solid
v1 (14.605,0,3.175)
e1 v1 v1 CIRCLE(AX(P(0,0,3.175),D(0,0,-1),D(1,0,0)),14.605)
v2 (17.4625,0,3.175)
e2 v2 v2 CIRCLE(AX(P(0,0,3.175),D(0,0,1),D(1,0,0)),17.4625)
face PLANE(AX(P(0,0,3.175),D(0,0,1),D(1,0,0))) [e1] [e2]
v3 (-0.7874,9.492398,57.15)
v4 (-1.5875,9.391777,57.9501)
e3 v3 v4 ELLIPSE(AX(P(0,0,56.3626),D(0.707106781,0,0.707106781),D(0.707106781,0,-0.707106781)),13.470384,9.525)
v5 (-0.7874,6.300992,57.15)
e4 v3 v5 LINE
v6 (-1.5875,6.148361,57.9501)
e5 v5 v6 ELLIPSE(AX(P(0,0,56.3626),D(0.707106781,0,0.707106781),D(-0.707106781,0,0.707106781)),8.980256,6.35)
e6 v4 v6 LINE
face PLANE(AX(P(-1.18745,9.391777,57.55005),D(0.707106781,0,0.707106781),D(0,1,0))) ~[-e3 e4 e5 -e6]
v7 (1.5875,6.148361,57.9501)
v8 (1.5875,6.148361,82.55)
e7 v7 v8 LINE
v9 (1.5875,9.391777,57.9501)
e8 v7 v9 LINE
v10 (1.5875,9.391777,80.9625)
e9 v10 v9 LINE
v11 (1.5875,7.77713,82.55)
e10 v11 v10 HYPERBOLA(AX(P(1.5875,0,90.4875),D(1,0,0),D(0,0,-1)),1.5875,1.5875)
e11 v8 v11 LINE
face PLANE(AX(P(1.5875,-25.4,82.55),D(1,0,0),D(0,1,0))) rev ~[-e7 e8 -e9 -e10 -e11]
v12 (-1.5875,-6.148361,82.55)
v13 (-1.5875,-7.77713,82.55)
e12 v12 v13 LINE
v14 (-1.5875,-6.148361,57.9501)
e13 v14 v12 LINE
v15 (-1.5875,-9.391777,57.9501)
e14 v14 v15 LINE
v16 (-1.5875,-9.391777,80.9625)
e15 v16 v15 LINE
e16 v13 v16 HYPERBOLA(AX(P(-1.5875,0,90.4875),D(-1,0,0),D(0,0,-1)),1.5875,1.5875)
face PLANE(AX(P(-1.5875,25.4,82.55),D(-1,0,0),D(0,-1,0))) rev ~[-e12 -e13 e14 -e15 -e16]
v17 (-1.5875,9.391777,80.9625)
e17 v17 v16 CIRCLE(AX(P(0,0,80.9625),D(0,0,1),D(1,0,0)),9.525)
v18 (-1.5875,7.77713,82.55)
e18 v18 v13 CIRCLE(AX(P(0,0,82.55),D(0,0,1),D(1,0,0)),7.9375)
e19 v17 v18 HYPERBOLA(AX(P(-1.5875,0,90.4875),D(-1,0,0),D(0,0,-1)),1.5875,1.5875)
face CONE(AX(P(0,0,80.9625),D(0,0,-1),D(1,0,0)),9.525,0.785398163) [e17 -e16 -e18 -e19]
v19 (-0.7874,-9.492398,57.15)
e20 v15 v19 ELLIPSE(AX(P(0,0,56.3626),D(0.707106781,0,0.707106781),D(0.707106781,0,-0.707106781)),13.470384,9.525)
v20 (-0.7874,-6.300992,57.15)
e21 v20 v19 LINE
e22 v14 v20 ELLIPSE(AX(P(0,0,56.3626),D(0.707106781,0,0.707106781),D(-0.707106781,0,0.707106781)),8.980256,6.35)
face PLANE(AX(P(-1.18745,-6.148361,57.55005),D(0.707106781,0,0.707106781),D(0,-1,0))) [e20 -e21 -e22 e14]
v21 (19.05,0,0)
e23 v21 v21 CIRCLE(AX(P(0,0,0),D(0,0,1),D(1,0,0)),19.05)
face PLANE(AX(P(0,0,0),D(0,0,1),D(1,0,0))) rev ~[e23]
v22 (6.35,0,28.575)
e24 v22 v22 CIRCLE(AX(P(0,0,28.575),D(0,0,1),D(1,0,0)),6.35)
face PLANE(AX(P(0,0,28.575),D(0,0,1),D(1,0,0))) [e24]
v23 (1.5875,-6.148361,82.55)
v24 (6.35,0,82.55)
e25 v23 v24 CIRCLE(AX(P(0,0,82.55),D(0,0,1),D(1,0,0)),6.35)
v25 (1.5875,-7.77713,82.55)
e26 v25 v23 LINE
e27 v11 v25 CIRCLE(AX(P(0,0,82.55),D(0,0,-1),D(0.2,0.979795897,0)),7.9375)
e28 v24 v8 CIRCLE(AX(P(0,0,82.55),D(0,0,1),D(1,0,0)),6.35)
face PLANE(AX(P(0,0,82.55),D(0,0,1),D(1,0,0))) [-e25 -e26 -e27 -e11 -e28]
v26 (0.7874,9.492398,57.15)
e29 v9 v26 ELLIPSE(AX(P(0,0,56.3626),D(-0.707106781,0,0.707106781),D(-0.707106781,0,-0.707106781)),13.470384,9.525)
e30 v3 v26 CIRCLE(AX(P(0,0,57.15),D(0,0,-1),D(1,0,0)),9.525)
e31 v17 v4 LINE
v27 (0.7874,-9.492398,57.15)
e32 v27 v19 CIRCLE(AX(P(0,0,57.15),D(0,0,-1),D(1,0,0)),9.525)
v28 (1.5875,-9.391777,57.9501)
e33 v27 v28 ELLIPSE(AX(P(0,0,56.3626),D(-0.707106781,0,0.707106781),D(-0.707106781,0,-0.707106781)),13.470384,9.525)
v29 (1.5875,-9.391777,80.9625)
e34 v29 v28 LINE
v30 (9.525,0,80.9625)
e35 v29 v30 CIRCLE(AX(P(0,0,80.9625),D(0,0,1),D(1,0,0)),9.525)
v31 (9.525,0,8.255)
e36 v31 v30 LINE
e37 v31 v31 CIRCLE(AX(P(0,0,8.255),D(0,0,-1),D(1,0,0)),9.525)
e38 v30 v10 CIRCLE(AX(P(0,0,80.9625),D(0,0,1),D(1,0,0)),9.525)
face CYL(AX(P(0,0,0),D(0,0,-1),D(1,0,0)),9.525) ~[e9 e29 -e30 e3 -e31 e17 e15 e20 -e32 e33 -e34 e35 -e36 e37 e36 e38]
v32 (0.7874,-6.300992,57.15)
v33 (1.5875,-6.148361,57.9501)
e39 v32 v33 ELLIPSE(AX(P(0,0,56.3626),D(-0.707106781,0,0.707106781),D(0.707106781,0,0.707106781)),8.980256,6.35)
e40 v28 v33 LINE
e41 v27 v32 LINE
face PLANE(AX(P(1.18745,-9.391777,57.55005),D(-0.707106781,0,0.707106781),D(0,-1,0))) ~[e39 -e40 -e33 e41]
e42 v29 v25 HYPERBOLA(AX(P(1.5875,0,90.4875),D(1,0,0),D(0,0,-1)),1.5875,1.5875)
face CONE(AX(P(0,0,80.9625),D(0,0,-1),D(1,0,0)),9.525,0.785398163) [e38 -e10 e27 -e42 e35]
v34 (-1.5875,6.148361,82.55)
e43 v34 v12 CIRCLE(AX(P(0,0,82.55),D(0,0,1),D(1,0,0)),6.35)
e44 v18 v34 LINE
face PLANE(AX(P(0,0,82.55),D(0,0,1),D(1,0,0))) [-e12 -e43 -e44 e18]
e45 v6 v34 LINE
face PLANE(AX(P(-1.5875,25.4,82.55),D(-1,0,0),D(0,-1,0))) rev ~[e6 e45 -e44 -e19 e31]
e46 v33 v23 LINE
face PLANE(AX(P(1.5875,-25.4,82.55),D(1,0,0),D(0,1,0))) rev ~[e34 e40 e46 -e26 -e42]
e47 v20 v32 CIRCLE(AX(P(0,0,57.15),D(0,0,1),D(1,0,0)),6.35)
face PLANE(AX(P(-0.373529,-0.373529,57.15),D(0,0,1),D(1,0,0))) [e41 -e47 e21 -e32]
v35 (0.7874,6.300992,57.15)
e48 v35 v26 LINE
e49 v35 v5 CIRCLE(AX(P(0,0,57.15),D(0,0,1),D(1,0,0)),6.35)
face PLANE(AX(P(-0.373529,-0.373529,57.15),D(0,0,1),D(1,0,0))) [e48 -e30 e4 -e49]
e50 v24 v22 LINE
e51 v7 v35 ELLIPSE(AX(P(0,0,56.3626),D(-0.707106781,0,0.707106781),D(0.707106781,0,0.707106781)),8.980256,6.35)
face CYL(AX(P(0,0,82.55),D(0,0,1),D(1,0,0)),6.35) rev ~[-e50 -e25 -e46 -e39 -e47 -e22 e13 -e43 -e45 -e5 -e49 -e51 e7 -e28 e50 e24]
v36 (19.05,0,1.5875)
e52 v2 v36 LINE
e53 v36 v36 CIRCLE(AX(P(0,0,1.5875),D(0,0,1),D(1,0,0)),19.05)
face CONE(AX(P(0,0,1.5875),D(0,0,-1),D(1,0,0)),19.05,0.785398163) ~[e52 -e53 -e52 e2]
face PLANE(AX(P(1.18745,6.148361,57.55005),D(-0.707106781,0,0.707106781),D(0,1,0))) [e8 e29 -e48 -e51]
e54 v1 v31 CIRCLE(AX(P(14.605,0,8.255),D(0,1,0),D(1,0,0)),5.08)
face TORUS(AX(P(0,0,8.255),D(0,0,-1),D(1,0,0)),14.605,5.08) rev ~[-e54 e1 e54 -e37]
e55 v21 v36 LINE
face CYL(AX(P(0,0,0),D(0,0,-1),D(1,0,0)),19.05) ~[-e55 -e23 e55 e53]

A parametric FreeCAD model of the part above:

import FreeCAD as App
import Part
import Sketcher
Q = App.Units.Quantity


def edges_at(feature, points):
    """Names of the edges that pass closest to the given points."""
    edges = feature.Shape.Edges
    near = lambda p: min(range(len(edges)), key=lambda i: edges[i].distToShape(Part.Vertex(*p))[0])
    return sorted({f"Edge{near(p) + 1}" for p in points})


def add_polygon(sketch, points):
    """Adds a closed chain of lines whose ends are joined by coincident constraints."""
    first, n = sketch.GeometryCount, len(points)
    for a, b in zip(points, points[1:] + points[:1]):
        sketch.addGeometry(Part.LineSegment(App.Vector(*a, 0), App.Vector(*b, 0)), False)
    for i in range(n):
        sketch.addConstraint(Sketcher.Constraint("Coincident", first + i, 2, first + (i + 1) % n, 1))

doc = App.newDocument("Part")
params = doc.addObject("Spreadsheet::Sheet", "Params")
for row, (alias, value) in enumerate([
    ("sketch1_diameter", "0.75 in"),
    ("pad1_length", "3.25 in"),
    ("sketch2_diameter", "1.5 in"),
    ("pad2_length", "0.125 in"),
    ("sketch3_diameter", "0.5 in"),
    ("pocket1_length", "2.125 in"),
    ("fillet_radius", "0.2 in"),
    ("chamfer_size", "0.0625 in"),
    ("sketch4_height", "2 in"),
    ("sketch4_width", "0.125 in"),
    ("pocket2_length", "1 in"),
    ("chamfer2_size", "0.0315 in"),
], start=1):
    params.set(f"A{row}", alias)
    params.set(f"B{row}", "=" + value)
    params.setAlias(f"B{row}", alias)

body = doc.addObject("PartDesign::Body", "Body")

sketch1 = body.newObject("Sketcher::SketchObject", "Sketch")
sketch1.AttachmentSupport = (doc.getObject("XY_Plane"), [""])
sketch1.MapMode = "FlatFace"
sketch1.addGeometry(Part.Circle(App.Vector(0, 0, 0), App.Vector(0, 0, 1), 10), False)
sketch1.addConstraint([
    Sketcher.Constraint("Coincident", 0, 3, -1, 1),
    Sketcher.Constraint("Diameter", 0, Q("0.75 in")),
])
sketch1.setExpression("Constraints[1]", "Params.sketch1_diameter")
pad1 = body.newObject("PartDesign::Pad", "Pad")
pad1.Profile = sketch1
pad1.setExpression("Length", "Params.pad1_length")

sketch2 = body.newObject("Sketcher::SketchObject", "Sketch001")
sketch2.AttachmentSupport = (doc.getObject("XY_Plane"), [""])
sketch2.MapMode = "FlatFace"
sketch2.addGeometry(Part.Circle(App.Vector(0, 0, 0), App.Vector(0, 0, 1), 19), False)
sketch2.addConstraint([
    Sketcher.Constraint("Coincident", 0, 3, -1, 1),
    Sketcher.Constraint("Diameter", 0, Q("1.5 in")),
])
sketch2.setExpression("Constraints[1]", "Params.sketch2_diameter")
pad2 = body.newObject("PartDesign::Pad", "Pad001")
pad2.Profile = sketch2
pad2.setExpression("Length", "Params.pad2_length")

sketch3 = body.newObject("Sketcher::SketchObject", "Sketch002")
sketch3.AttachmentSupport = (doc.getObject("XY_Plane"), [""])
sketch3.MapMode = "FlatFace"
sketch3.AttachmentOffset = App.Placement(App.Vector(0, 0, 3.25 * 25.4), App.Rotation())
sketch3.addGeometry(Part.Circle(App.Vector(0, 0, 0), App.Vector(0, 0, 1), 6), False)
sketch3.addConstraint([
    Sketcher.Constraint("Coincident", 0, 3, -1, 1),
    Sketcher.Constraint("Diameter", 0, Q("0.5 in")),
])
sketch3.setExpression("Constraints[1]", "Params.sketch3_diameter")
pocket1 = body.newObject("PartDesign::Pocket", "Pocket")
pocket1.Profile = sketch3
pocket1.setExpression("Length", "Params.pocket1_length")
doc.recompute()

fillet = body.newObject("PartDesign::Fillet", "Fillet")
fillet.Base = (pocket1, edges_at(pocket1, [(-9.525, 0, 3.175)]))
fillet.setExpression("Radius", "Params.fillet_radius")
doc.recompute()

chamfer = body.newObject("PartDesign::Chamfer", "Chamfer")
chamfer.Base = (fillet, edges_at(fillet, [(-9.525, 0, 82.55), (-19.05, 0, 3.175)]))
chamfer.setExpression("Size", "Params.chamfer_size")

sketch4 = body.newObject("Sketcher::SketchObject", "Sketch003")
sketch4.AttachmentSupport = (doc.getObject("XY_Plane"), [""])
sketch4.MapMode = "FlatFace"
sketch4.AttachmentOffset = App.Placement(App.Vector(0, 0, 3.25 * 25.4), App.Rotation())
add_polygon(sketch4, [(-1.6, 25.4), (-1.6, -25.4), (1.6, -25.4), (1.6, 25.4)])
sketch4.addConstraint([
    Sketcher.Constraint("Vertical", 0),
    Sketcher.Constraint("Horizontal", 1),
    Sketcher.Constraint("Vertical", 2),
    Sketcher.Constraint("Horizontal", 3),
    Sketcher.Constraint("Symmetric", 0, 2, 2, 2, -1, 1),
    Sketcher.Constraint("DistanceY", 0, 2, 0, 1, Q("2 in")),
    Sketcher.Constraint("DistanceX", 1, 1, 1, 2, Q("0.125 in")),
])
sketch4.setExpression("Constraints[9]", "Params.sketch4_height")
sketch4.setExpression("Constraints[10]", "Params.sketch4_width")
pocket2 = body.newObject("PartDesign::Pocket", "Pocket001")
pocket2.Profile = sketch4
pocket2.setExpression("Length", "Params.pocket2_length")
doc.recompute()

chamfer2 = body.newObject("PartDesign::Chamfer", "Chamfer001")
chamfer2.Base = (pocket2, edges_at(pocket2, [
    (1.587, 7.77, 57.15),
    (1.587, -7.77, 57.15),
    (-1.587, 7.77, 57.15),
    (-1.587, -7.77, 57.15),
]))
chamfer2.setExpression("Size", "Params.chamfer2_size")

doc.recompute()
